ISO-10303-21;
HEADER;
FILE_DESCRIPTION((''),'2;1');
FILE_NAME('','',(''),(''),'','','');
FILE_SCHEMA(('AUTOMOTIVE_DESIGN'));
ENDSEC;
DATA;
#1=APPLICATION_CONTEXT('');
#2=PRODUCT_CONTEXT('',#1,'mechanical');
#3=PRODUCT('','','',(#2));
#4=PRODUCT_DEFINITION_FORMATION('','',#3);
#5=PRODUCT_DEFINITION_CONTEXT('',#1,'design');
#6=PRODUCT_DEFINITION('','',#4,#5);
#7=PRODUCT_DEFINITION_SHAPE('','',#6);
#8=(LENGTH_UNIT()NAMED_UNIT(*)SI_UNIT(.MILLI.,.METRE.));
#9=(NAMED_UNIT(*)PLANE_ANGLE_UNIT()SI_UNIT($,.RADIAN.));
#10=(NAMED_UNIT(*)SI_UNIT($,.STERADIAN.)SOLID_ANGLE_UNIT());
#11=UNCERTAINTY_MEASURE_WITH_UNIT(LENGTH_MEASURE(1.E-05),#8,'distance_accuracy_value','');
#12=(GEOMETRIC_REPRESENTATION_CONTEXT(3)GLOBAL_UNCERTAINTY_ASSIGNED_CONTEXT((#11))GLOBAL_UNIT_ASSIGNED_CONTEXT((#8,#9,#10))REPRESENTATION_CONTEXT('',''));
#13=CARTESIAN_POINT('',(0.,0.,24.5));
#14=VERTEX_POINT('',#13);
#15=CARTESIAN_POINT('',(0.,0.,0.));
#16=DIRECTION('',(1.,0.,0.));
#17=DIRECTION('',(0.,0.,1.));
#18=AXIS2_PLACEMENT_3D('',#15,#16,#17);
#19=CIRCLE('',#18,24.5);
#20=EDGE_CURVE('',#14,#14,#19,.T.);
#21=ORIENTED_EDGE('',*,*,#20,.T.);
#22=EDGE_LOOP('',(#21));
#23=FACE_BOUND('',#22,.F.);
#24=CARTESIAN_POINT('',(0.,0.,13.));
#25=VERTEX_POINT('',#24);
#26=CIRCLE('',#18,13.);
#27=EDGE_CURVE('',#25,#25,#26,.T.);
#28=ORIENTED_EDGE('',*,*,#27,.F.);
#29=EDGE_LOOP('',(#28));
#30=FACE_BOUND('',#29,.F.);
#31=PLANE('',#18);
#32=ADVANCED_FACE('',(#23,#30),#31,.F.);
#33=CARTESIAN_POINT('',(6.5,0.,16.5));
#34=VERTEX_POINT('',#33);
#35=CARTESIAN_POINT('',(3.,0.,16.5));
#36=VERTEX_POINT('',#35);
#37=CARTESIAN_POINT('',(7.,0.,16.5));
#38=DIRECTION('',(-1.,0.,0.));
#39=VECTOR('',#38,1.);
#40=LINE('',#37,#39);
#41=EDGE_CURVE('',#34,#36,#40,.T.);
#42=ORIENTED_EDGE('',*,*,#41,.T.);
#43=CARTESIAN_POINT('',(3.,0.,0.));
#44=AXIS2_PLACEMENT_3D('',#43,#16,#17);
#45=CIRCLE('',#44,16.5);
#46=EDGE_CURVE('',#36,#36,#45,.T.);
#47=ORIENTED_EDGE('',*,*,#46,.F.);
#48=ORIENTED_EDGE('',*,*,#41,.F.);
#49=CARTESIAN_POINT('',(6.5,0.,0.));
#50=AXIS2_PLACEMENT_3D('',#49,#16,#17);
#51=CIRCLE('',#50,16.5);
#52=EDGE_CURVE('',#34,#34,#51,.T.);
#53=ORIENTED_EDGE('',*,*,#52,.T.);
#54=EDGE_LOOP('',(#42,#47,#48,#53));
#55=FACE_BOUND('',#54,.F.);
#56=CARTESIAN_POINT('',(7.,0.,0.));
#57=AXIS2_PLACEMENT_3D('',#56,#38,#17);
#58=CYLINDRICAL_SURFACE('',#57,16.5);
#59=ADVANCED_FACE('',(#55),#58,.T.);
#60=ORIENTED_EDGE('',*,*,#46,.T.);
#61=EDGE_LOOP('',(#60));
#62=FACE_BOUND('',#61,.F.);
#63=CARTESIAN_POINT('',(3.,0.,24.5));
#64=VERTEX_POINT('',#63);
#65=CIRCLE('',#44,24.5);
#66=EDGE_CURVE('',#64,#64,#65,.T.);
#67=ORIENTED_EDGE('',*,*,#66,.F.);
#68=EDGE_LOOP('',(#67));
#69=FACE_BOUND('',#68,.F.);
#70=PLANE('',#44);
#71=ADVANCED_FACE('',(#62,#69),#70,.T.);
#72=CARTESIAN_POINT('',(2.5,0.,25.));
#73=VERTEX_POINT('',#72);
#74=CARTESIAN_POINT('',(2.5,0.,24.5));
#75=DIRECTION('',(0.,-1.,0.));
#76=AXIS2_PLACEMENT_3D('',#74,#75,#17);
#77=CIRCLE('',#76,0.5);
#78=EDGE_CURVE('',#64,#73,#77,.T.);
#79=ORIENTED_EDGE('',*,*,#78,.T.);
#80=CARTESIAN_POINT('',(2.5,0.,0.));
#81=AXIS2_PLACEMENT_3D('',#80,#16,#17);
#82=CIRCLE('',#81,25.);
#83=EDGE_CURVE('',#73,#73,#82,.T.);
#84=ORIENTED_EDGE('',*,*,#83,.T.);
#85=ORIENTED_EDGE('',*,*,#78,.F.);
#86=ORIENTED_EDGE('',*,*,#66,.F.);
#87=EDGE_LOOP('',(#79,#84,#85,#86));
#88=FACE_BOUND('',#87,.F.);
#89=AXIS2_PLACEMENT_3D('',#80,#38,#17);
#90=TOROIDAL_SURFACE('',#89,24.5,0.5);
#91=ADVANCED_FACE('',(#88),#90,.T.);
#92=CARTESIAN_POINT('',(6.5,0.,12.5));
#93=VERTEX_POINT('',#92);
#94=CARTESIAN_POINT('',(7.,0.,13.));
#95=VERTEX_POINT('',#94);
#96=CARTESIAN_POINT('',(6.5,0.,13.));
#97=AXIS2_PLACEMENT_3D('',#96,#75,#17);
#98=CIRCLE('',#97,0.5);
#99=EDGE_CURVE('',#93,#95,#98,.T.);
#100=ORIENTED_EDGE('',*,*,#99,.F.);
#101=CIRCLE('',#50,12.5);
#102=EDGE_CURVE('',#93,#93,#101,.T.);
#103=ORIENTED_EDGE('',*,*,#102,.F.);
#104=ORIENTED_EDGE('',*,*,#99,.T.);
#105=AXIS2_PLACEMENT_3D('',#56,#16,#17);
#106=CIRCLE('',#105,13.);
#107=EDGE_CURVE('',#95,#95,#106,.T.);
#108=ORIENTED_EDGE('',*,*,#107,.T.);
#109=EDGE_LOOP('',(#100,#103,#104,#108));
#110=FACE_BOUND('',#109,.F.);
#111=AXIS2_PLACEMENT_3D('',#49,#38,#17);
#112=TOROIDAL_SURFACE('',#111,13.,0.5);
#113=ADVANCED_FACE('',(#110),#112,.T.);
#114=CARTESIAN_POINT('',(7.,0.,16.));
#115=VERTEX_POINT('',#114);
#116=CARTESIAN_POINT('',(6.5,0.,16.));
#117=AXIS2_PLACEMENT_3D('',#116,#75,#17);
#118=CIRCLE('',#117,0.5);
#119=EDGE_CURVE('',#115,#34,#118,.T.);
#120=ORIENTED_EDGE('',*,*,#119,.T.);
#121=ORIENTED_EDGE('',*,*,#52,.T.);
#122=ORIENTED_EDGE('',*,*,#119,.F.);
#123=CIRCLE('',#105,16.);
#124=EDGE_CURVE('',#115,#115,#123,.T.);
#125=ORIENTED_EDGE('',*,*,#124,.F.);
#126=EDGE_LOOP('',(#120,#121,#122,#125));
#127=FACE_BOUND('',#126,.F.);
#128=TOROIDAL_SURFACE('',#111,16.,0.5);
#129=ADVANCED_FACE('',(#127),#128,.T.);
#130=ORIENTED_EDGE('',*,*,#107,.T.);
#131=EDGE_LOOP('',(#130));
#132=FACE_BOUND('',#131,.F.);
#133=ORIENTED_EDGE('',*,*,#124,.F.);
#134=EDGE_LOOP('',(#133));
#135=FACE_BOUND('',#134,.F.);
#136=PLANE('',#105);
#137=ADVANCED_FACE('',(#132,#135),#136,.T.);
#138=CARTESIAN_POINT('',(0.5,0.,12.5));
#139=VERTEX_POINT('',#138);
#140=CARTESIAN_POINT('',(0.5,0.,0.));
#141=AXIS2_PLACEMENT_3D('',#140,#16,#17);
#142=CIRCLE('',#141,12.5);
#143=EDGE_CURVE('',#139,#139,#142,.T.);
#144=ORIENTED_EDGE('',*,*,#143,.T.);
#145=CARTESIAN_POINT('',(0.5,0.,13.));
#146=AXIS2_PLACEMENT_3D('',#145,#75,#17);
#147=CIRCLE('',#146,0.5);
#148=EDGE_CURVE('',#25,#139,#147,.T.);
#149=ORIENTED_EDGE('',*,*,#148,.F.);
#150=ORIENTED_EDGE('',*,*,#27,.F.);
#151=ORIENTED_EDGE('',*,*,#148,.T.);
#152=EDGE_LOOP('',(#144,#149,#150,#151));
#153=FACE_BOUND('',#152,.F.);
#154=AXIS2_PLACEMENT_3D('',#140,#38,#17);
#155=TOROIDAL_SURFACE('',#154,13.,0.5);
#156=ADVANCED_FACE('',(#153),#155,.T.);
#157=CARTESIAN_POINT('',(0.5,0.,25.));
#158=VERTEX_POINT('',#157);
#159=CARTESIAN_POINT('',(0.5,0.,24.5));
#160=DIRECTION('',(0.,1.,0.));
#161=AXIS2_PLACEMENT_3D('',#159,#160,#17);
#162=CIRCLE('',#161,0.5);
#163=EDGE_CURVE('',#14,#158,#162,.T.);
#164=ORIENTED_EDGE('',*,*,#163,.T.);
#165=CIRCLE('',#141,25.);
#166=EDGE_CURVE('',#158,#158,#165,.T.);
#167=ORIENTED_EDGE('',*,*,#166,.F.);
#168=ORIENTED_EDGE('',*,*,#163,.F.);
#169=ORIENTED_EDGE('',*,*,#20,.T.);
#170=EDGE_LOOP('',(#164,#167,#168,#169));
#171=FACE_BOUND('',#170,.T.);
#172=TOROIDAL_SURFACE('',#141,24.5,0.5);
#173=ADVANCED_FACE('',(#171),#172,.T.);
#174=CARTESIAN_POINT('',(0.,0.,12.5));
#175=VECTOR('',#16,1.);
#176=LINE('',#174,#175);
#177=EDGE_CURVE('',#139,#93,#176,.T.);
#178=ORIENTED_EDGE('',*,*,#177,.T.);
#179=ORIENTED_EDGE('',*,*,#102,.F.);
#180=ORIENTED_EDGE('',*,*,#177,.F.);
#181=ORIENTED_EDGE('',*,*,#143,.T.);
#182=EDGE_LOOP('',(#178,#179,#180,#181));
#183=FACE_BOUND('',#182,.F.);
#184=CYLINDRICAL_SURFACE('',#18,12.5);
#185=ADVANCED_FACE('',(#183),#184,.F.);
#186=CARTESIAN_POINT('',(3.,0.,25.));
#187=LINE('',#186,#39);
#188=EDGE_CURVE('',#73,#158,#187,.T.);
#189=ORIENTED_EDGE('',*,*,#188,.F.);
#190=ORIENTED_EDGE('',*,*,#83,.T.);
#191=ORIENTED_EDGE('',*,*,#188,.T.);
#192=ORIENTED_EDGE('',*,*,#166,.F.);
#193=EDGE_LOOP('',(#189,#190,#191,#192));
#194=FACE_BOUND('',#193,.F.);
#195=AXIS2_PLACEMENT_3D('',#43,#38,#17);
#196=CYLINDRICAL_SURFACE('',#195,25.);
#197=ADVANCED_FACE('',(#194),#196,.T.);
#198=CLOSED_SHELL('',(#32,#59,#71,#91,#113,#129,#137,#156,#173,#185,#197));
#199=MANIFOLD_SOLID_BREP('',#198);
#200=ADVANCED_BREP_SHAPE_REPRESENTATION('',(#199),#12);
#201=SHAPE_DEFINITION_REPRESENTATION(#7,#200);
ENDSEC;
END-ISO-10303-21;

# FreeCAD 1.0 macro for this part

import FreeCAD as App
import Part
import Sketcher
from FreeCAD import Vector
Q = App.Units.Quantity


def edges_at(feature, points):
    """Names of the edges that pass closest to the given points."""
    edges = feature.Shape.Edges
    near = lambda p: min(range(len(edges)), key=lambda i: edges[i].distToShape(Part.Vertex(*p))[0])
    return sorted({f"Edge{near(p) + 1}" for p in points})

doc = App.newDocument("Part")
body = doc.addObject("PartDesign::Body", "Body")

# Sketch on XZ plane
sketch1 = doc.addObject("Sketcher::SketchObject", "Sketch")
body.addObject(sketch1)
sketch1.AttachmentSupport = (doc.XZ_Plane, [""])
sketch1.MapMode = "FlatFace"
sketch1.addGeometry([
    Part.LineSegment(Vector(0, 25, 0), Vector(0, 12.5, 0)),  # 0
    Part.LineSegment(Vector(0, 12.5, 0), Vector(7, 12.5, 0)),  # 1
    Part.LineSegment(Vector(7, 12.5, 0), Vector(7, 16.5, 0)),  # 2
    Part.LineSegment(Vector(7, 16.5, 0), Vector(3, 16.5, 0)),  # 3
    Part.LineSegment(Vector(3, 16.5, 0), Vector(3, 25, 0)),  # 4
    Part.LineSegment(Vector(3, 25, 0), Vector(0, 25, 0)),  # 5
], False)
sketch1.addConstraint([
    Sketcher.Constraint("Coincident", 0, 2, 1, 1),
    Sketcher.Constraint("Coincident", 1, 2, 2, 1),
    Sketcher.Constraint("Coincident", 2, 2, 3, 1),
    Sketcher.Constraint("Coincident", 3, 2, 4, 1),
    Sketcher.Constraint("Coincident", 4, 2, 5, 1),
    Sketcher.Constraint("Coincident", 5, 2, 0, 1),
    Sketcher.Constraint("Vertical", 0),
    Sketcher.Constraint("Horizontal", 1),
    Sketcher.Constraint("Vertical", 2),
    Sketcher.Constraint("Horizontal", 3),
    Sketcher.Constraint("Vertical", 4),
    Sketcher.Constraint("Horizontal", 5),
    Sketcher.Constraint("PointOnObject", 0, 2, -2),
    Sketcher.Constraint("Equal", 3, 2),
    Sketcher.Constraint("DistanceX", 1, 1, 1, 2, Q("7 mm")),
    Sketcher.Constraint("DistanceX", 3, 2, 3, 1, Q("4 mm")),
    Sketcher.Constraint("DistanceY", 0, 2, 0, 1, Q("12.5 mm")),
    Sketcher.Constraint("DistanceY", -1, 1, 4, 2, Q("25 mm")),
])
revolution = doc.addObject("PartDesign::Revolution", "Revolution")
body.addObject(revolution)
revolution.Profile = sketch1
revolution.ReferenceAxis = (sketch1, ["H_Axis"])
revolution.Angle = 360
doc.recompute()

fillet = doc.addObject("PartDesign::Fillet", "Fillet")
body.addObject(fillet)
fillet.Base = (revolution, edges_at(revolution, [
    (0, 0, -25),
    (3, 0, -25),
    (7, 0, -16.5),
    (7, 0, -12.5),
    (0, 0, -12.5),
]))
fillet.Radius = 0.5

doc.recompute()
